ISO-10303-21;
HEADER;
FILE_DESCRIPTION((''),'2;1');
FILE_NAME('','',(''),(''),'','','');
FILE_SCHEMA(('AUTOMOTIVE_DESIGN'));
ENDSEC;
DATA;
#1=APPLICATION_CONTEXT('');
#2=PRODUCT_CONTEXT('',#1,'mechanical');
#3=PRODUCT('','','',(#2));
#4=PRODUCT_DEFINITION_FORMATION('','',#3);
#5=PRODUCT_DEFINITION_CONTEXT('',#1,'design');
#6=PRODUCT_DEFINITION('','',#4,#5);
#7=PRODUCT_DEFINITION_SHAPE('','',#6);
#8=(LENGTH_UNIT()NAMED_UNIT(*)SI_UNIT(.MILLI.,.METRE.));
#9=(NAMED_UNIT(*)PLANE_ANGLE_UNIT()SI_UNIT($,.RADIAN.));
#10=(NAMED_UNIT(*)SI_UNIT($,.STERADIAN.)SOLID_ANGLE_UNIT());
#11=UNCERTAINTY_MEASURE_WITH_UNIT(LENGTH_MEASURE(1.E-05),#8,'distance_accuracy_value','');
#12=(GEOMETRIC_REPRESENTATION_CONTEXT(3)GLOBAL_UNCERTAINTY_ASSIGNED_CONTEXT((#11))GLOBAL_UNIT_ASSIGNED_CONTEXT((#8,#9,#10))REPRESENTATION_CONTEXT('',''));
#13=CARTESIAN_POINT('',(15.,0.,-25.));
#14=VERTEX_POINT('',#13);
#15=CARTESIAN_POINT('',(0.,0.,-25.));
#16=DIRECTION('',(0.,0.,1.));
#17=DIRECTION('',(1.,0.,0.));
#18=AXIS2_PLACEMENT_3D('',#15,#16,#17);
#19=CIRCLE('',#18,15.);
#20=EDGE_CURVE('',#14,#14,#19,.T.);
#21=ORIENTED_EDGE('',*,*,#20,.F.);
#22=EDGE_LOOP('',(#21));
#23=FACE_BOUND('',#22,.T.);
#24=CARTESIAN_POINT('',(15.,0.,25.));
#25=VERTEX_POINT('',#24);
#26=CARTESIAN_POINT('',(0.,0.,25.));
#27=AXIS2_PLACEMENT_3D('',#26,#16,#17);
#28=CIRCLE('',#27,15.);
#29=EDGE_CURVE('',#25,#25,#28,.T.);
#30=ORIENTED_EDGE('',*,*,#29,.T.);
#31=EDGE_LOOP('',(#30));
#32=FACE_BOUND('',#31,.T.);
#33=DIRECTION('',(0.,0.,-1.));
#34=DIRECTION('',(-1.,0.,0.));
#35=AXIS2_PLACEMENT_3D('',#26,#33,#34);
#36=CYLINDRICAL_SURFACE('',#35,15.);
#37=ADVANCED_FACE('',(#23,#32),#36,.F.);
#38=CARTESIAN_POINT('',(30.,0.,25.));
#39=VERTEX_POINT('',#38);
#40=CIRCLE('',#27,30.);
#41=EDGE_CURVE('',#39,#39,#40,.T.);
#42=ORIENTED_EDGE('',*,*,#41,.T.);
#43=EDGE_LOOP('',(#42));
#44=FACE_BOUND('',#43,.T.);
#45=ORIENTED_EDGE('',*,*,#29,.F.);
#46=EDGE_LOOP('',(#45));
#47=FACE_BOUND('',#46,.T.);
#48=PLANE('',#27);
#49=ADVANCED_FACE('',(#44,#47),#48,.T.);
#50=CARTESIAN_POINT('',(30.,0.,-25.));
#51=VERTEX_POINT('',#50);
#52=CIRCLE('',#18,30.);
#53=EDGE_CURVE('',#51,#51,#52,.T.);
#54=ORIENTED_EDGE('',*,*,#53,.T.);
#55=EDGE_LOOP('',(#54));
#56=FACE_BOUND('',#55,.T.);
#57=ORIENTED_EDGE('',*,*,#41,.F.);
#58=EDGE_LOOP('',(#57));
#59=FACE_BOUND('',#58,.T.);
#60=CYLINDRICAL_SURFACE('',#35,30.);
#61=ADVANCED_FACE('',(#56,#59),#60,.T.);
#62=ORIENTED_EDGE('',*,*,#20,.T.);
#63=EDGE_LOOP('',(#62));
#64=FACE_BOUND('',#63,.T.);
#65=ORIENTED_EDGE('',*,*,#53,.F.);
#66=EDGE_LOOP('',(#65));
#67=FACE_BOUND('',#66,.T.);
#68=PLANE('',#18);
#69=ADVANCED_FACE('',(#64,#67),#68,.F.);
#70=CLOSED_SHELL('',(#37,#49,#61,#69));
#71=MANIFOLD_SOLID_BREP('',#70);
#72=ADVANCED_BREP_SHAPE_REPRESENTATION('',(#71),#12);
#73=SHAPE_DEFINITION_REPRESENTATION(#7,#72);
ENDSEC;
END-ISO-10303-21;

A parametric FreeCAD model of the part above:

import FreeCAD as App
import Part
import Sketcher
Q = App.Units.Quantity

doc = App.newDocument("Part")
body = doc.addObject("PartDesign::Body", "Body")

sketch1 = doc.addObject("Sketcher::SketchObject", "Sketch")
body.addObject(sketch1)
sketch1.AttachmentSupport = (doc.XY_Plane, [""])
sketch1.MapMode = "FlatFace"
sketch1.addGeometry([
    Part.Circle(App.Vector(0, 0, 0), App.Vector(0, 0, 1), 30),
    Part.Circle(App.Vector(0, 0, 0), App.Vector(0, 0, 1), 15),
], False)
sketch1.addConstraint([
    Sketcher.Constraint("Coincident", 0, 3, -1, 1),
    Sketcher.Constraint("Coincident", 1, 3, -1, 1),
    Sketcher.Constraint("Diameter", 0, Q("60 mm")),
    Sketcher.Constraint("Diameter", 1, Q("30 mm")),
])
pad1 = doc.addObject("PartDesign::Pad", "Pad")
body.addObject(pad1)
pad1.Profile = sketch1
pad1.Length = 50
pad1.Midplane = True

doc.recompute()
